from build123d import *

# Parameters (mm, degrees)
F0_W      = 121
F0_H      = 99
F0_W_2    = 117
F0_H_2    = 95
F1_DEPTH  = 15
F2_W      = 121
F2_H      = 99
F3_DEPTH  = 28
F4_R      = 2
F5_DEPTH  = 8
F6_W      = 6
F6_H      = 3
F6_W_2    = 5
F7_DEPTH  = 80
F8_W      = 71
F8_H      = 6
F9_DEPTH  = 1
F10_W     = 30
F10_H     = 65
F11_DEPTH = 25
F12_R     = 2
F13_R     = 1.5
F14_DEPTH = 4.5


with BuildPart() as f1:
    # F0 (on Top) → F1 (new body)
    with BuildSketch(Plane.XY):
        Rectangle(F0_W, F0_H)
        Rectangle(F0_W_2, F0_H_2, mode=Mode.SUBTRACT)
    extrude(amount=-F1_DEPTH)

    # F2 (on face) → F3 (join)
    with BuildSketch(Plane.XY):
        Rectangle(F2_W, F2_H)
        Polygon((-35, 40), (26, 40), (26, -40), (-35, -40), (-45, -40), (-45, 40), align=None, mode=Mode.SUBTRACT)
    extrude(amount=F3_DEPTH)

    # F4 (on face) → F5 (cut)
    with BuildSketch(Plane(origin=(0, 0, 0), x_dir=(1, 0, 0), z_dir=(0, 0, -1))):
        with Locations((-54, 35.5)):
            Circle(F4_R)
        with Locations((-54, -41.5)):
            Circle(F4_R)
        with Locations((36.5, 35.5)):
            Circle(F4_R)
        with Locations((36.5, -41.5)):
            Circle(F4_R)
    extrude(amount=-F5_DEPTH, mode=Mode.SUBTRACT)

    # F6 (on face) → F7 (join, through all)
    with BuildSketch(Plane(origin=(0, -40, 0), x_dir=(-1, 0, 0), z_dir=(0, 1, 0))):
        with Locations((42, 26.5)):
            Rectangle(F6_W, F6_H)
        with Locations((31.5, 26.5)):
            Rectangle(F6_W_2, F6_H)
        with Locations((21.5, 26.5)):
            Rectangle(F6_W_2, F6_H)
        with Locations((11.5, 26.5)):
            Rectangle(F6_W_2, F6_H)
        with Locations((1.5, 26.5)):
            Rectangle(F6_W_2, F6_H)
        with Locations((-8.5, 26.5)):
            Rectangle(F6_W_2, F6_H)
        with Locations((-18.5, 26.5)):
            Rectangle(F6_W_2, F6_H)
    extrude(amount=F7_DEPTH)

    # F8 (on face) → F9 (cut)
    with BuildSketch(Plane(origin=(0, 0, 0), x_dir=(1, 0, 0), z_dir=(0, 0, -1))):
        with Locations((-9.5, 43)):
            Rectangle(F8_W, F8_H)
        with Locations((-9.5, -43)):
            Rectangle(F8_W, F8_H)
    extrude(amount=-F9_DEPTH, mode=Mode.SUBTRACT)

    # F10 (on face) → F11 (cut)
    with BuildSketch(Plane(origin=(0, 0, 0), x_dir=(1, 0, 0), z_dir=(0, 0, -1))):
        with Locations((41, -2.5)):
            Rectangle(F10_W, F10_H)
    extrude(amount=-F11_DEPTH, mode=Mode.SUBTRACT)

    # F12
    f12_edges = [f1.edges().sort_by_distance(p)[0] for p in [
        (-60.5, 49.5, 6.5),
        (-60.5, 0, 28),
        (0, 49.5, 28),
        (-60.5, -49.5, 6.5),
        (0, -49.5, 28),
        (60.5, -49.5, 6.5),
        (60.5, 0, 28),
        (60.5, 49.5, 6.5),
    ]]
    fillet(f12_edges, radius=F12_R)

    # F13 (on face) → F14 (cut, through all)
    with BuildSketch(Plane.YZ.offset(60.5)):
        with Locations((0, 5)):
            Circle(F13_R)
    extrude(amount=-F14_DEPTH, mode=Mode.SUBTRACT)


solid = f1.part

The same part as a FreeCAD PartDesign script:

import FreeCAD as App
import Part
import Sketcher
from FreeCAD import Vector


def edges_at(feature, points):
    """Names of the edges that pass closest to the given points."""
    edges = feature.Shape.Edges
    near = lambda p: min(range(len(edges)), key=lambda i: edges[i].distToShape(Part.Vertex(*p))[0])
    return sorted({f"Edge{near(p) + 1}" for p in points})

doc = App.newDocument("Part")
params = doc.addObject("Spreadsheet::Sheet", "Params")
for row, (alias, value) in enumerate([
    ("sketch1_width", "121 mm"),
    ("sketch1_width2", "117 mm"),
    ("sketch1_height", "99 mm"),
    ("sketch1_height2", "95 mm"),
    ("pad1_length", "15 mm"),
    ("sketch2_width", "121 mm"),
    ("sketch2_width2", "71 mm"),
    ("sketch2_height", "99 mm"),
    ("sketch2_height2", "80 mm"),
    ("pad2_length", "28 mm"),
    ("sketch3_diameter", "4 mm"),
    ("pocket1_length", "8 mm"),
    ("sketch4_width", "6 mm"),
    ("sketch4_width2", "5 mm"),
    ("sketch4_height", "3 mm"),
    ("sketch5_width", "71 mm"),
    ("sketch5_height", "6 mm"),
    ("pocket2_length", "1 mm"),
    ("sketch6_width", "30 mm"),
    ("sketch6_height", "65 mm"),
    ("pocket3_length", "25 mm"),
    ("fillet_radius", "2 mm"),
    ("sketch7_diameter", "3 mm"),
    ("pocket4_length", "4.5 mm"),
], start=1):
    params.set(f"A{row}", alias)
    params.set(f"B{row}", "=" + value)
    params.setAlias(f"B{row}", alias)

body = doc.addObject("PartDesign::Body", "Body")

sketch1 = doc.addObject("Sketcher::SketchObject", "Sketch")
body.addObject(sketch1)
sketch1.AttachmentSupport = (doc.XY_Plane, [""])
sketch1.MapMode = "FlatFace"
sketch1.addGeometry(Part.LineSegment(Vector(-60, 50, 0), Vector(-60, -50, 0)), False)
sketch1.addGeometry(Part.LineSegment(Vector(-60, -50, 0), Vector(60, -50, 0)), False)
sketch1.addGeometry(Part.LineSegment(Vector(60, -50, 0), Vector(60, 50, 0)), False)
sketch1.addGeometry(Part.LineSegment(Vector(60, 50, 0), Vector(-60, 50, 0)), False)
sketch1.addGeometry(Part.LineSegment(Vector(58, -48, 0), Vector(-58, -48, 0)), False)
sketch1.addGeometry(Part.LineSegment(Vector(-58, -48, 0), Vector(-58, 48, 0)), False)
sketch1.addGeometry(Part.LineSegment(Vector(-58, 48, 0), Vector(58, 48, 0)), False)
sketch1.addGeometry(Part.LineSegment(Vector(58, 48, 0), Vector(58, -48, 0)), False)
sketch1.addConstraint(Sketcher.Constraint("Coincident", 0, 2, 1, 1))
sketch1.addConstraint(Sketcher.Constraint("Coincident", 1, 2, 2, 1))
sketch1.addConstraint(Sketcher.Constraint("Coincident", 2, 2, 3, 1))
sketch1.addConstraint(Sketcher.Constraint("Coincident", 3, 2, 0, 1))
sketch1.addConstraint(Sketcher.Constraint("Coincident", 4, 2, 5, 1))
sketch1.addConstraint(Sketcher.Constraint("Coincident", 5, 2, 6, 1))
sketch1.addConstraint(Sketcher.Constraint("Coincident", 6, 2, 7, 1))
sketch1.addConstraint(Sketcher.Constraint("Coincident", 7, 2, 4, 1))
sketch1.addConstraint(Sketcher.Constraint("Vertical", 0))
sketch1.addConstraint(Sketcher.Constraint("Horizontal", 1))
sketch1.addConstraint(Sketcher.Constraint("Vertical", 2))
sketch1.addConstraint(Sketcher.Constraint("Horizontal", 3))
sketch1.addConstraint(Sketcher.Constraint("Horizontal", 4))
sketch1.addConstraint(Sketcher.Constraint("Vertical", 5))
sketch1.addConstraint(Sketcher.Constraint("Horizontal", 6))
sketch1.addConstraint(Sketcher.Constraint("Vertical", 7))
sketch1.addConstraint(Sketcher.Constraint("Symmetric", 0, 2, 2, 2, -1, 1))
sketch1.addConstraint(Sketcher.Constraint("Symmetric", 4, 2, 6, 2, -1, 1))
sketch1.addConstraint(Sketcher.Constraint("DistanceX", 1, 1, 1, 2, 121.0))
sketch1.addConstraint(Sketcher.Constraint("DistanceX", 4, 2, 4, 1, 117.0))
sketch1.addConstraint(Sketcher.Constraint("DistanceY", 0, 2, 0, 1, 99.0))
sketch1.addConstraint(Sketcher.Constraint("DistanceY", 5, 1, 5, 2, 95.0))
sketch1.setExpression("Constraints[18]", "Params.sketch1_width")
sketch1.setExpression("Constraints[19]", "Params.sketch1_width2")
sketch1.setExpression("Constraints[20]", "Params.sketch1_height")
sketch1.setExpression("Constraints[21]", "Params.sketch1_height2")
pad1 = doc.addObject("PartDesign::Pad", "Pad")
body.addObject(pad1)
pad1.Profile = sketch1
pad1.setExpression("Length", "Params.pad1_length")
pad1.Reversed = True

sketch2 = doc.addObject("Sketcher::SketchObject", "Sketch001")
body.addObject(sketch2)
sketch2.AttachmentSupport = (doc.XY_Plane, [""])
sketch2.MapMode = "FlatFace"
sketch2.addGeometry(Part.LineSegment(Vector(-60, 50, 0), Vector(-60, -50, 0)), False)
sketch2.addGeometry(Part.LineSegment(Vector(-60, -50, 0), Vector(60, -50, 0)), False)
sketch2.addGeometry(Part.LineSegment(Vector(60, -50, 0), Vector(60, 50, 0)), False)
sketch2.addGeometry(Part.LineSegment(Vector(60, 50, 0), Vector(-60, 50, 0)), False)
sketch2.addGeometry(Part.LineSegment(Vector(-45, 40, 0), Vector(26, 40, 0)), False)
sketch2.addGeometry(Part.LineSegment(Vector(26, 40, 0), Vector(26, -40, 0)), False)
sketch2.addGeometry(Part.LineSegment(Vector(26, -40, 0), Vector(-45, -40, 0)), False)
sketch2.addGeometry(Part.LineSegment(Vector(-45, -40, 0), Vector(-45, 40, 0)), False)
sketch2.addConstraint(Sketcher.Constraint("Coincident", 0, 2, 1, 1))
sketch2.addConstraint(Sketcher.Constraint("Coincident", 1, 2, 2, 1))
sketch2.addConstraint(Sketcher.Constraint("Coincident", 2, 2, 3, 1))
sketch2.addConstraint(Sketcher.Constraint("Coincident", 3, 2, 0, 1))
sketch2.addConstraint(Sketcher.Constraint("Coincident", 4, 2, 5, 1))
sketch2.addConstraint(Sketcher.Constraint("Coincident", 5, 2, 6, 1))
sketch2.addConstraint(Sketcher.Constraint("Coincident", 6, 2, 7, 1))
sketch2.addConstraint(Sketcher.Constraint("Coincident", 7, 2, 4, 1))
sketch2.addConstraint(Sketcher.Constraint("Vertical", 0))
sketch2.addConstraint(Sketcher.Constraint("Horizontal", 1))
sketch2.addConstraint(Sketcher.Constraint("Vertical", 2))
sketch2.addConstraint(Sketcher.Constraint("Horizontal", 3))
sketch2.addConstraint(Sketcher.Constraint("Horizontal", 4))
sketch2.addConstraint(Sketcher.Constraint("Vertical", 5))
sketch2.addConstraint(Sketcher.Constraint("Horizontal", 6))
sketch2.addConstraint(Sketcher.Constraint("Vertical", 7))
sketch2.addConstraint(Sketcher.Constraint("Symmetric", 0, 2, 2, 2, -1, 1))
sketch2.addConstraint(Sketcher.Constraint("DistanceX", 1, 1, 1, 2, 121.0))
sketch2.addConstraint(Sketcher.Constraint("DistanceX", 4, 1, 4, 2, 71.0))
sketch2.addConstraint(Sketcher.Constraint("DistanceY", 0, 2, 0, 1, 99.0))
sketch2.addConstraint(Sketcher.Constraint("DistanceY", 5, 2, 5, 1, 80.0))
sketch2.addConstraint(Sketcher.Constraint("DistanceX", -1, 1, 4, 2, 26.0))
sketch2.addConstraint(Sketcher.Constraint("DistanceY", -1, 1, 4, 2, 40.0))
sketch2.setExpression("Constraints[17]", "Params.sketch2_width")
sketch2.setExpression("Constraints[18]", "Params.sketch2_width2")
sketch2.setExpression("Constraints[19]", "Params.sketch2_height")
sketch2.setExpression("Constraints[20]", "Params.sketch2_height2")
pad2 = doc.addObject("PartDesign::Pad", "Pad001")
body.addObject(pad2)
pad2.Profile = sketch2
pad2.setExpression("Length", "Params.pad2_length")

sketch3 = doc.addObject("Sketcher::SketchObject", "Sketch002")
body.addObject(sketch3)
sketch3.AttachmentSupport = (doc.XY_Plane, [""])
sketch3.MapMode = "FlatFace"
sketch3.addGeometry(Part.Circle(Vector(-54, -35.5, 0), Vector(0, 0, 1), 2), False)
sketch3.addGeometry(Part.Circle(Vector(-54, 41.5, 0), Vector(0, 0, 1), 2), False)
sketch3.addGeometry(Part.Circle(Vector(36.5, -35.5, 0), Vector(0, 0, 1), 2), False)
sketch3.addGeometry(Part.Circle(Vector(36.5, 41.5, 0), Vector(0, 0, 1), 2), False)
sketch3.addConstraint(Sketcher.Constraint("Equal", 0, 1))
sketch3.addConstraint(Sketcher.Constraint("Equal", 1, 2))
sketch3.addConstraint(Sketcher.Constraint("Equal", 2, 3))
sketch3.addConstraint(Sketcher.Constraint("Horizontal", 0, 3, 2, 3))
sketch3.addConstraint(Sketcher.Constraint("Horizontal", 1, 3, 3, 3))
sketch3.addConstraint(Sketcher.Constraint("Vertical", 0, 3, 1, 3))
sketch3.addConstraint(Sketcher.Constraint("Vertical", 2, 3, 3, 3))
sketch3.addConstraint(Sketcher.Constraint("Diameter", 0, 4.0))
sketch3.addConstraint(Sketcher.Constraint("DistanceX", 0, 3, -1, 1, 54.0))
sketch3.addConstraint(Sketcher.Constraint("DistanceY", 0, 3, 1, 3, 77.0))
sketch3.addConstraint(Sketcher.Constraint("DistanceY", 0, 3, -1, 1, 35.5))
sketch3.addConstraint(Sketcher.Constraint("DistanceX", -1, 1, 2, 3, 36.5))
sketch3.setExpression("Constraints[7]", "Params.sketch3_diameter")
pocket1 = doc.addObject("PartDesign::Pocket", "Pocket")
body.addObject(pocket1)
pocket1.Profile = sketch3
pocket1.setExpression("Length", "Params.pocket1_length")
pocket1.Reversed = True

sketch4 = doc.addObject("Sketcher::SketchObject", "Sketch003")
body.addObject(sketch4)
sketch4.AttachmentSupport = (doc.XZ_Plane, [""])
sketch4.MapMode = "FlatFace"
sketch4.AttachmentOffset = App.Placement(Vector(0, 0, 40), App.Rotation())
sketch4.addGeometry(Part.LineSegment(Vector(-39, 28, 0), Vector(-39, 25, 0)), False)
sketch4.addGeometry(Part.LineSegment(Vector(-39, 25, 0), Vector(-45, 25, 0)), False)
sketch4.addGeometry(Part.LineSegment(Vector(-45, 25, 0), Vector(-45, 28, 0)), False)
sketch4.addGeometry(Part.LineSegment(Vector(-45, 28, 0), Vector(-39, 28, 0)), False)
sketch4.addGeometry(Part.LineSegment(Vector(-29, 28, 0), Vector(-29, 25, 0)), False)
sketch4.addGeometry(Part.LineSegment(Vector(-29, 25, 0), Vector(-34, 25, 0)), False)
sketch4.addGeometry(Part.LineSegment(Vector(-34, 25, 0), Vector(-34, 28, 0)), False)
sketch4.addGeometry(Part.LineSegment(Vector(-34, 28, 0), Vector(-29, 28, 0)), False)
sketch4.addGeometry(Part.LineSegment(Vector(-19, 28, 0), Vector(-19, 25, 0)), False)
sketch4.addGeometry(Part.LineSegment(Vector(-19, 25, 0), Vector(-24, 25, 0)), False)
sketch4.addGeometry(Part.LineSegment(Vector(-24, 25, 0), Vector(-24, 28, 0)), False)
sketch4.addGeometry(Part.LineSegment(Vector(-24, 28, 0), Vector(-19, 28, 0)), False)
sketch4.addGeometry(Part.LineSegment(Vector(-9, 28, 0), Vector(-9, 25, 0)), False)
sketch4.addGeometry(Part.LineSegment(Vector(-9, 25, 0), Vector(-14, 25, 0)), False)
sketch4.addGeometry(Part.LineSegment(Vector(-14, 25, 0), Vector(-14, 28, 0)), False)
sketch4.addGeometry(Part.LineSegment(Vector(-14, 28, 0), Vector(-9, 28, 0)), False)
sketch4.addGeometry(Part.LineSegment(Vector(1, 28, 0), Vector(1, 25, 0)), False)
sketch4.addGeometry(Part.LineSegment(Vector(1, 25, 0), Vector(-4, 25, 0)), False)
sketch4.addGeometry(Part.LineSegment(Vector(-4, 25, 0), Vector(-4, 28, 0)), False)
sketch4.addGeometry(Part.LineSegment(Vector(-4, 28, 0), Vector(1, 28, 0)), False)
sketch4.addGeometry(Part.LineSegment(Vector(11, 28, 0), Vector(11, 25, 0)), False)
sketch4.addGeometry(Part.LineSegment(Vector(11, 25, 0), Vector(6, 25, 0)), False)
sketch4.addGeometry(Part.LineSegment(Vector(6, 25, 0), Vector(6, 28, 0)), False)
sketch4.addGeometry(Part.LineSegment(Vector(6, 28, 0), Vector(11, 28, 0)), False)
sketch4.addGeometry(Part.LineSegment(Vector(21, 28, 0), Vector(21, 25, 0)), False)
sketch4.addGeometry(Part.LineSegment(Vector(21, 25, 0), Vector(16, 25, 0)), False)
sketch4.addGeometry(Part.LineSegment(Vector(16, 25, 0), Vector(16, 28, 0)), False)
sketch4.addGeometry(Part.LineSegment(Vector(16, 28, 0), Vector(21, 28, 0)), False)
sketch4.addConstraint(Sketcher.Constraint("Coincident", 0, 2, 1, 1))
sketch4.addConstraint(Sketcher.Constraint("Coincident", 1, 2, 2, 1))
sketch4.addConstraint(Sketcher.Constraint("Coincident", 2, 2, 3, 1))
sketch4.addConstraint(Sketcher.Constraint("Coincident", 3, 2, 0, 1))
sketch4.addConstraint(Sketcher.Constraint("Coincident", 4, 2, 5, 1))
sketch4.addConstraint(Sketcher.Constraint("Coincident", 5, 2, 6, 1))
sketch4.addConstraint(Sketcher.Constraint("Coincident", 6, 2, 7, 1))
sketch4.addConstraint(Sketcher.Constraint("Coincident", 7, 2, 4, 1))
sketch4.addConstraint(Sketcher.Constraint("Coincident", 8, 2, 9, 1))
sketch4.addConstraint(Sketcher.Constraint("Coincident", 9, 2, 10, 1))
sketch4.addConstraint(Sketcher.Constraint("Coincident", 10, 2, 11, 1))
sketch4.addConstraint(Sketcher.Constraint("Coincident", 11, 2, 8, 1))
sketch4.addConstraint(Sketcher.Constraint("Coincident", 12, 2, 13, 1))
sketch4.addConstraint(Sketcher.Constraint("Coincident", 13, 2, 14, 1))
sketch4.addConstraint(Sketcher.Constraint("Coincident", 14, 2, 15, 1))
sketch4.addConstraint(Sketcher.Constraint("Coincident", 15, 2, 12, 1))
sketch4.addConstraint(Sketcher.Constraint("Coincident", 16, 2, 17, 1))
sketch4.addConstraint(Sketcher.Constraint("Coincident", 17, 2, 18, 1))
sketch4.addConstraint(Sketcher.Constraint("Coincident", 18, 2, 19, 1))
sketch4.addConstraint(Sketcher.Constraint("Coincident", 19, 2, 16, 1))
sketch4.addConstraint(Sketcher.Constraint("Coincident", 20, 2, 21, 1))
sketch4.addConstraint(Sketcher.Constraint("Coincident", 21, 2, 22, 1))
sketch4.addConstraint(Sketcher.Constraint("Coincident", 22, 2, 23, 1))
sketch4.addConstraint(Sketcher.Constraint("Coincident", 23, 2, 20, 1))
sketch4.addConstraint(Sketcher.Constraint("Coincident", 24, 2, 25, 1))
sketch4.addConstraint(Sketcher.Constraint("Coincident", 25, 2, 26, 1))
sketch4.addConstraint(Sketcher.Constraint("Coincident", 26, 2, 27, 1))
sketch4.addConstraint(Sketcher.Constraint("Coincident", 27, 2, 24, 1))
sketch4.addConstraint(Sketcher.Constraint("Vertical", 0))
sketch4.addConstraint(Sketcher.Constraint("Horizontal", 1))
sketch4.addConstraint(Sketcher.Constraint("Vertical", 2))
sketch4.addConstraint(Sketcher.Constraint("Horizontal", 3))
sketch4.addConstraint(Sketcher.Constraint("Vertical", 4))
sketch4.addConstraint(Sketcher.Constraint("Horizontal", 5))
sketch4.addConstraint(Sketcher.Constraint("Vertical", 6))
sketch4.addConstraint(Sketcher.Constraint("Horizontal", 7))
sketch4.addConstraint(Sketcher.Constraint("Vertical", 8))
sketch4.addConstraint(Sketcher.Constraint("Horizontal", 9))
sketch4.addConstraint(Sketcher.Constraint("Vertical", 10))
sketch4.addConstraint(Sketcher.Constraint("Horizontal", 11))
sketch4.addConstraint(Sketcher.Constraint("Vertical", 12))
sketch4.addConstraint(Sketcher.Constraint("Horizontal", 13))
sketch4.addConstraint(Sketcher.Constraint("Vertical", 14))
sketch4.addConstraint(Sketcher.Constraint("Horizontal", 15))
sketch4.addConstraint(Sketcher.Constraint("Vertical", 16))
sketch4.addConstraint(Sketcher.Constraint("Horizontal", 17))
sketch4.addConstraint(Sketcher.Constraint("Vertical", 18))
sketch4.addConstraint(Sketcher.Constraint("Horizontal", 19))
sketch4.addConstraint(Sketcher.Constraint("Vertical", 20))
sketch4.addConstraint(Sketcher.Constraint("Horizontal", 21))
sketch4.addConstraint(Sketcher.Constraint("Vertical", 22))
sketch4.addConstraint(Sketcher.Constraint("Horizontal", 23))
sketch4.addConstraint(Sketcher.Constraint("Vertical", 24))
sketch4.addConstraint(Sketcher.Constraint("Horizontal", 25))
sketch4.addConstraint(Sketcher.Constraint("Vertical", 26))
sketch4.addConstraint(Sketcher.Constraint("Horizontal", 27))
sketch4.addConstraint(Sketcher.Constraint("Horizontal", 1, 2, 4, 2))
sketch4.addConstraint(Sketcher.Constraint("Horizontal", 3, 2, 6, 2))
sketch4.addConstraint(Sketcher.Constraint("Horizontal", 5, 2, 8, 2))
sketch4.addConstraint(Sketcher.Constraint("Horizontal", 7, 2, 10, 2))
sketch4.addConstraint(Sketcher.Constraint("Horizontal", 9, 2, 12, 2))
sketch4.addConstraint(Sketcher.Constraint("Horizontal", 11, 2, 14, 2))
sketch4.addConstraint(Sketcher.Constraint("Horizontal", 13, 2, 16, 2))
sketch4.addConstraint(Sketcher.Constraint("Horizontal", 15, 2, 18, 2))
sketch4.addConstraint(Sketcher.Constraint("Horizontal", 17, 2, 20, 2))
sketch4.addConstraint(Sketcher.Constraint("Horizontal", 19, 2, 22, 2))
sketch4.addConstraint(Sketcher.Constraint("Horizontal", 21, 2, 24, 2))
sketch4.addConstraint(Sketcher.Constraint("Horizontal", 23, 2, 26, 2))
sketch4.addConstraint(Sketcher.Constraint("Equal", 7, 9))
sketch4.addConstraint(Sketcher.Constraint("Equal", 11, 13))
sketch4.addConstraint(Sketcher.Constraint("Equal", 15, 17))
sketch4.addConstraint(Sketcher.Constraint("Equal", 19, 21))
sketch4.addConstraint(Sketcher.Constraint("Equal", 23, 25))
sketch4.addConstraint(Sketcher.Constraint("DistanceX", 1, 2, 1, 1, 6.0))
sketch4.addConstraint(Sketcher.Constraint("DistanceX", 5, 2, 5, 1, 5.0))
sketch4.addConstraint(Sketcher.Constraint("DistanceY", 0, 2, 0, 1, 3.0))
sketch4.addConstraint(Sketcher.Constraint("DistanceX", 0, 2, -1, 1, 39.0))
sketch4.addConstraint(Sketcher.Constraint("DistanceY", -1, 1, 0, 2, 25.0))
sketch4.addConstraint(Sketcher.Constraint("DistanceX", 4, 2, -1, 1, 29.0))
sketch4.addConstraint(Sketcher.Constraint("DistanceX", 8, 2, -1, 1, 19.0))
sketch4.addConstraint(Sketcher.Constraint("DistanceX", 12, 2, -1, 1, 9.0))
sketch4.addConstraint(Sketcher.Constraint("DistanceX", -1, 1, 16, 2, 1.0))
sketch4.addConstraint(Sketcher.Constraint("DistanceX", -1, 1, 20, 2, 11.0))
sketch4.addConstraint(Sketcher.Constraint("DistanceX", -1, 1, 24, 2, 21.0))
sketch4.setExpression("Constraints[73]", "Params.sketch4_width")
sketch4.setExpression("Constraints[74]", "Params.sketch4_width2")
sketch4.setExpression("Constraints[75]", "Params.sketch4_height")
pad3 = doc.addObject("PartDesign::Pad", "Pad002")
body.addObject(pad3)
pad3.Profile = sketch4
pad3.Type = "UpToLast"
pad3.Reversed = True

sketch5 = doc.addObject("Sketcher::SketchObject", "Sketch004")
body.addObject(sketch5)
sketch5.AttachmentSupport = (doc.XY_Plane, [""])
sketch5.MapMode = "FlatFace"
sketch5.addGeometry(Part.LineSegment(Vector(-45, -46, 0), Vector(-45, -40, 0)), False)
sketch5.addGeometry(Part.LineSegment(Vector(-45, -40, 0), Vector(26, -40, 0)), False)
sketch5.addGeometry(Part.LineSegment(Vector(26, -40, 0), Vector(26, -46, 0)), False)
sketch5.addGeometry(Part.LineSegment(Vector(26, -46, 0), Vector(-45, -46, 0)), False)
sketch5.addGeometry(Part.LineSegment(Vector(-45, 40, 0), Vector(-45, 46, 0)), False)
sketch5.addGeometry(Part.LineSegment(Vector(-45, 46, 0), Vector(26, 46, 0)), False)
sketch5.addGeometry(Part.LineSegment(Vector(26, 46, 0), Vector(26, 40, 0)), False)
sketch5.addGeometry(Part.LineSegment(Vector(26, 40, 0), Vector(-45, 40, 0)), False)
sketch5.addConstraint(Sketcher.Constraint("Coincident", 0, 2, 1, 1))
sketch5.addConstraint(Sketcher.Constraint("Coincident", 1, 2, 2, 1))
sketch5.addConstraint(Sketcher.Constraint("Coincident", 2, 2, 3, 1))
sketch5.addConstraint(Sketcher.Constraint("Coincident", 3, 2, 0, 1))
sketch5.addConstraint(Sketcher.Constraint("Coincident", 4, 2, 5, 1))
sketch5.addConstraint(Sketcher.Constraint("Coincident", 5, 2, 6, 1))
sketch5.addConstraint(Sketcher.Constraint("Coincident", 6, 2, 7, 1))
sketch5.addConstraint(Sketcher.Constraint("Coincident", 7, 2, 4, 1))
sketch5.addConstraint(Sketcher.Constraint("Vertical", 0))
sketch5.addConstraint(Sketcher.Constraint("Horizontal", 1))
sketch5.addConstraint(Sketcher.Constraint("Vertical", 2))
sketch5.addConstraint(Sketcher.Constraint("Horizontal", 3))
sketch5.addConstraint(Sketcher.Constraint("Vertical", 4))
sketch5.addConstraint(Sketcher.Constraint("Horizontal", 5))
sketch5.addConstraint(Sketcher.Constraint("Vertical", 6))
sketch5.addConstraint(Sketcher.Constraint("Horizontal", 7))
sketch5.addConstraint(Sketcher.Constraint("Symmetric", 3, 2, 4, 2, -1))
sketch5.addConstraint(Sketcher.Constraint("Symmetric", 1, 2, 6, 2, -1))
sketch5.addConstraint(Sketcher.Constraint("DistanceX", 1, 1, 1, 2, 71.0))
sketch5.addConstraint(Sketcher.Constraint("DistanceY", 0, 1, 0, 2, 6.0))
sketch5.addConstraint(Sketcher.Constraint("DistanceX", 0, 2, -1, 1, 45.0))
sketch5.addConstraint(Sketcher.Constraint("DistanceY", 0, 2, -1, 1, 40.0))
sketch5.setExpression("Constraints[18]", "Params.sketch5_width")
sketch5.setExpression("Constraints[19]", "Params.sketch5_height")
pocket2 = doc.addObject("PartDesign::Pocket", "Pocket001")
body.addObject(pocket2)
pocket2.Profile = sketch5
pocket2.setExpression("Length", "Params.pocket2_length")
pocket2.Reversed = True

sketch6 = doc.addObject("Sketcher::SketchObject", "Sketch005")
body.addObject(sketch6)
sketch6.AttachmentSupport = (doc.XY_Plane, [""])
sketch6.MapMode = "FlatFace"
sketch6.addGeometry(Part.LineSegment(Vector(26, -30, 0), Vector(26, 35, 0)), False)
sketch6.addGeometry(Part.LineSegment(Vector(26, 35, 0), Vector(56, 35, 0)), False)
sketch6.addGeometry(Part.LineSegment(Vector(56, 35, 0), Vector(56, -30, 0)), False)
sketch6.addGeometry(Part.LineSegment(Vector(56, -30, 0), Vector(26, -30, 0)), False)
sketch6.addConstraint(Sketcher.Constraint("Coincident", 0, 2, 1, 1))
sketch6.addConstraint(Sketcher.Constraint("Coincident", 1, 2, 2, 1))
sketch6.addConstraint(Sketcher.Constraint("Coincident", 2, 2, 3, 1))
sketch6.addConstraint(Sketcher.Constraint("Coincident", 3, 2, 0, 1))
sketch6.addConstraint(Sketcher.Constraint("Vertical", 0))
sketch6.addConstraint(Sketcher.Constraint("Horizontal", 1))
sketch6.addConstraint(Sketcher.Constraint("Vertical", 2))
sketch6.addConstraint(Sketcher.Constraint("Horizontal", 3))
sketch6.addConstraint(Sketcher.Constraint("DistanceX", 1, 1, 1, 2, 30.0))
sketch6.addConstraint(Sketcher.Constraint("DistanceY", 0, 1, 0, 2, 65.0))
sketch6.addConstraint(Sketcher.Constraint("DistanceX", -1, 1, 0, 2, 26.0))
sketch6.addConstraint(Sketcher.Constraint("DistanceY", -1, 1, 0, 2, 35.0))
sketch6.setExpression("Constraints[8]", "Params.sketch6_width")
sketch6.setExpression("Constraints[9]", "Params.sketch6_height")
pocket3 = doc.addObject("PartDesign::Pocket", "Pocket002")
body.addObject(pocket3)
pocket3.Profile = sketch6
pocket3.setExpression("Length", "Params.pocket3_length")
pocket3.Reversed = True
doc.recompute()

fillet = doc.addObject("PartDesign::Fillet", "Fillet")
body.addObject(fillet)
fillet.Base = (pocket3, edges_at(pocket3, [
    (-60.5, 49.5, 6.5),
    (-60.5, 0, 28),
    (0, 49.5, 28),
    (-60.5, -49.5, 6.5),
    (0, -49.5, 28),
    (60.5, -49.5, 6.5),
    (60.5, 0, 28),
    (60.5, 49.5, 6.5),
]))
fillet.setExpression("Radius", "Params.fillet_radius")

sketch7 = doc.addObject("Sketcher::SketchObject", "Sketch006")
body.addObject(sketch7)
sketch7.AttachmentSupport = (doc.YZ_Plane, [""])
sketch7.MapMode = "FlatFace"
sketch7.AttachmentOffset = App.Placement(Vector(0, 0, 60.5), App.Rotation())
sketch7.addGeometry(Part.Circle(Vector(0, 5, 0), Vector(0, 0, 1), 1.5), False)
sketch7.addConstraint(Sketcher.Constraint("PointOnObject", 0, 3, -2))
sketch7.addConstraint(Sketcher.Constraint("Diameter", 0, 3.0))
sketch7.addConstraint(Sketcher.Constraint("DistanceY", -1, 1, 0, 3, 5.0))
sketch7.setExpression("Constraints[1]", "Params.sketch7_diameter")
pocket4 = doc.addObject("PartDesign::Pocket", "Pocket003")
body.addObject(pocket4)
pocket4.Profile = sketch7
pocket4.setExpression("Length", "Params.pocket4_length")

doc.recompute()
